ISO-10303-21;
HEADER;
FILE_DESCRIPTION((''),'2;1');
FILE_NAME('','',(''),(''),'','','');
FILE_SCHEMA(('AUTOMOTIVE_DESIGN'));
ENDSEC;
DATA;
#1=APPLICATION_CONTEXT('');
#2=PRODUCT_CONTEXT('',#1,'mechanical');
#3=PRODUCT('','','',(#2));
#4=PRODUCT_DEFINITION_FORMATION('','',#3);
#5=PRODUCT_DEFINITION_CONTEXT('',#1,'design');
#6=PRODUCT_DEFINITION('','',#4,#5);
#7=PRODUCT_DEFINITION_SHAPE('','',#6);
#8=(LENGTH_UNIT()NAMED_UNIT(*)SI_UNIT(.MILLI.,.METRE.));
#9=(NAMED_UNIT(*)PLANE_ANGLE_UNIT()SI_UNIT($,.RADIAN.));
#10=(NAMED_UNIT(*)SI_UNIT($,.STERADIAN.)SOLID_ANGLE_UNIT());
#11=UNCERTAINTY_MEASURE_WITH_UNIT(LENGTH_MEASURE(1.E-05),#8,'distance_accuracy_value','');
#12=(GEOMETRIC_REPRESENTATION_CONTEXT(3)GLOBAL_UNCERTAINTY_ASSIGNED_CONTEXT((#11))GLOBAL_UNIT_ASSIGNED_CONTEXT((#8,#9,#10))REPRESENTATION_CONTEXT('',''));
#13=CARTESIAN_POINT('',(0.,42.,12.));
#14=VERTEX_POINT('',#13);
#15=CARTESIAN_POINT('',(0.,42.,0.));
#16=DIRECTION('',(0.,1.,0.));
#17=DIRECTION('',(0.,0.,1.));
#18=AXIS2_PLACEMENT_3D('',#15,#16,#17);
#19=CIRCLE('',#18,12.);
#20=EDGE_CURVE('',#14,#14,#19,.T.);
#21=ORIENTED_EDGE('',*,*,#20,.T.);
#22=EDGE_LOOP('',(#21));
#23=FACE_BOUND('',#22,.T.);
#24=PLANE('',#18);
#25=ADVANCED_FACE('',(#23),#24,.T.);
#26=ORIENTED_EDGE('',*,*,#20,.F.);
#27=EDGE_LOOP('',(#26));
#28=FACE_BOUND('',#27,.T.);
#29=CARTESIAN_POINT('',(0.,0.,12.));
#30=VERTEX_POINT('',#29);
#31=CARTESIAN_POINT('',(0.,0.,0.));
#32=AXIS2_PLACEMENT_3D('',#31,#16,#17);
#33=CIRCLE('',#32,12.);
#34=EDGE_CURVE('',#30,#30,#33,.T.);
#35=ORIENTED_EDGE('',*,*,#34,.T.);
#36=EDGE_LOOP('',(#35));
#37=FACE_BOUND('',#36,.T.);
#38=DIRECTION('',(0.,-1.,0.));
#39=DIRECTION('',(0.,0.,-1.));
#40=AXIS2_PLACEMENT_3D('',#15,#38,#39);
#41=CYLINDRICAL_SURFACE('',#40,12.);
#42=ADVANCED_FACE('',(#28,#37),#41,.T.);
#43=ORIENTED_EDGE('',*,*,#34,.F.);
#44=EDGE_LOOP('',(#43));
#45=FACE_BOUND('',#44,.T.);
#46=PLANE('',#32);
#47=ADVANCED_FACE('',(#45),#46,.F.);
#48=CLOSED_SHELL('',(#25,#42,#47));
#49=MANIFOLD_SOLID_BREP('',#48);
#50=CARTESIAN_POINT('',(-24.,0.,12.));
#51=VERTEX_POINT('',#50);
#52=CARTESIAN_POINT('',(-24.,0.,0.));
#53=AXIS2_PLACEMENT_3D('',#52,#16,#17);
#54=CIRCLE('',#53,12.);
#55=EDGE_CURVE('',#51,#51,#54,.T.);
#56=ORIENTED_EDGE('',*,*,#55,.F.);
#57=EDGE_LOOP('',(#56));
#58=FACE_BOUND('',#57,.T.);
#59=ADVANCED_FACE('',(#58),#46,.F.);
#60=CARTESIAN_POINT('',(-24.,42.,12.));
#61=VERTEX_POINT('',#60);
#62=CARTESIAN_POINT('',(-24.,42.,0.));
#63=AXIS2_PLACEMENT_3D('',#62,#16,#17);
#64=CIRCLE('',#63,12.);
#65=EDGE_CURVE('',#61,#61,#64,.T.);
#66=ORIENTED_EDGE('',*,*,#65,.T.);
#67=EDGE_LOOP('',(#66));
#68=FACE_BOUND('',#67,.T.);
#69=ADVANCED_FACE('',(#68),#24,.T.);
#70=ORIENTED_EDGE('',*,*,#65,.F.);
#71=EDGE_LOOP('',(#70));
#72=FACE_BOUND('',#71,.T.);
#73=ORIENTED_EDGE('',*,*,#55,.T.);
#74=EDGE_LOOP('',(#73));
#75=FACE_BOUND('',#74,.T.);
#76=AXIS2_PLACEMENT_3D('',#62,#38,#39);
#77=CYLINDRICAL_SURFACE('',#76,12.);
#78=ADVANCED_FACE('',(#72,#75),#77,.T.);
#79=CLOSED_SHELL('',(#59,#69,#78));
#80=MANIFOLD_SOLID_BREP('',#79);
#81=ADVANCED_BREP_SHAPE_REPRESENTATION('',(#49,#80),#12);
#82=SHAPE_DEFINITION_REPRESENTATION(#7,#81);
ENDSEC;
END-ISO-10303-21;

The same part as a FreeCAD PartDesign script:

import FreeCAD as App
import Part
import Sketcher
Q = App.Units.Quantity

doc = App.newDocument("Part")
body = doc.addObject("PartDesign::Body", "Body")

# Sketch on XZ plane
sketch1 = body.newObject("Sketcher::SketchObject", "Sketch")
sketch1.AttachmentSupport = (doc.getObject("XZ_Plane"), [""])
sketch1.MapMode = "FlatFace"
sketch1.addGeometry(Part.Circle(App.Vector(0, 0, 0), App.Vector(0, 0, 1), 12), False)
sketch1.addConstraint([
    Sketcher.Constraint("Coincident", 0, 3, -1, 1),
    Sketcher.Constraint("Diameter", 0, Q("24 mm")),
])
pad1 = body.newObject("PartDesign::Pad", "Pad")
pad1.Profile = sketch1
pad1.Length = 42
pad1.Reversed = True
body2 = doc.addObject("PartDesign::Body", "Body001")

# Sketch on XZ plane
sketch2 = body2.newObject("Sketcher::SketchObject", "Sketch001")
sketch2.AttachmentSupport = (doc.getObject("XZ_Plane001"), [""])
sketch2.MapMode = "FlatFace"
sketch2.addGeometry(Part.Circle(App.Vector(-24, 0, 0), App.Vector(0, 0, 1), 12), False)
sketch2.addConstraint([
    Sketcher.Constraint("PointOnObject", 0, 3, -1),
    Sketcher.Constraint("Diameter", 0, Q("24 mm")),
    Sketcher.Constraint("DistanceX", 0, 3, -1, 1, Q("24 mm")),
])
pad2 = body2.newObject("PartDesign::Pad", "Pad001")
pad2.Profile = sketch2
pad2.Length = 42
pad2.Reversed = True

doc.recompute()
